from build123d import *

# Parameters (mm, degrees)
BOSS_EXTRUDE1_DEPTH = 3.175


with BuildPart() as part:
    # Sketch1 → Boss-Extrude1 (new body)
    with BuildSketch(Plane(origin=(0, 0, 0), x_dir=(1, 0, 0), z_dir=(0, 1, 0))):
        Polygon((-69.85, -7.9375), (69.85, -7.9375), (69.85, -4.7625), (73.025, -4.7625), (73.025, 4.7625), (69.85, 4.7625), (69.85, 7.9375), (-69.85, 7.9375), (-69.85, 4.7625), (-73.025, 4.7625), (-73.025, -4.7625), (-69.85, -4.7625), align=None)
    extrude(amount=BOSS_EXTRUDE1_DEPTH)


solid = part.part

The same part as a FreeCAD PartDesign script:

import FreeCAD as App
import Part
import Sketcher
from FreeCAD import Vector
Q = App.Units.Quantity

doc = App.newDocument("Part")
body = doc.addObject("PartDesign::Body", "Body")

sketch1 = body.newObject("Sketcher::SketchObject", "Sketch")
sketch1.AttachmentSupport = (doc.getObject("XZ_Plane"), [""])
sketch1.MapMode = "FlatFace"
sketch1.addGeometry([
    Part.LineSegment(Vector(-69.8, 7.9, 0), Vector(69.8, 7.9, 0)),
    Part.LineSegment(Vector(69.8, 7.9, 0), Vector(69.8, 4.8, 0)),
    Part.LineSegment(Vector(69.8, 4.8, 0), Vector(73, 4.8, 0)),
    Part.LineSegment(Vector(73, 4.8, 0), Vector(73, -4.8, 0)),
    Part.LineSegment(Vector(73, -4.8, 0), Vector(69.8, -4.8, 0)),
    Part.LineSegment(Vector(69.8, -4.8, 0), Vector(69.8, -7.9, 0)),
    Part.LineSegment(Vector(69.8, -7.9, 0), Vector(-69.8, -7.9, 0)),
    Part.LineSegment(Vector(-69.8, -7.9, 0), Vector(-69.8, -4.8, 0)),
    Part.LineSegment(Vector(-69.8, -4.8, 0), Vector(-73, -4.8, 0)),
    Part.LineSegment(Vector(-73, -4.8, 0), Vector(-73, 4.8, 0)),
    Part.LineSegment(Vector(-73, 4.8, 0), Vector(-69.8, 4.8, 0)),
    Part.LineSegment(Vector(-69.8, 4.8, 0), Vector(-69.8, 7.9, 0)),
], False)
sketch1.addConstraint([
    Sketcher.Constraint("Coincident", 0, 2, 1, 1),
    Sketcher.Constraint("Coincident", 1, 2, 2, 1),
    Sketcher.Constraint("Coincident", 2, 2, 3, 1),
    Sketcher.Constraint("Coincident", 3, 2, 4, 1),
    Sketcher.Constraint("Coincident", 4, 2, 5, 1),
    Sketcher.Constraint("Coincident", 5, 2, 6, 1),
    Sketcher.Constraint("Coincident", 6, 2, 7, 1),
    Sketcher.Constraint("Coincident", 7, 2, 8, 1),
    Sketcher.Constraint("Coincident", 8, 2, 9, 1),
    Sketcher.Constraint("Coincident", 9, 2, 10, 1),
    Sketcher.Constraint("Coincident", 10, 2, 11, 1),
    Sketcher.Constraint("Coincident", 11, 2, 0, 1),
    Sketcher.Constraint("Horizontal", 0),
    Sketcher.Constraint("Vertical", 1),
    Sketcher.Constraint("Horizontal", 2),
    Sketcher.Constraint("Vertical", 3),
    Sketcher.Constraint("Horizontal", 4),
    Sketcher.Constraint("Vertical", 5),
    Sketcher.Constraint("Horizontal", 6),
    Sketcher.Constraint("Vertical", 7),
    Sketcher.Constraint("Horizontal", 8),
    Sketcher.Constraint("Vertical", 9),
    Sketcher.Constraint("Horizontal", 10),
    Sketcher.Constraint("Vertical", 11),
    Sketcher.Constraint("Symmetric", 0, 2, 6, 2, -1, 1),
    Sketcher.Constraint("Symmetric", 2, 2, 8, 2, -1, 1),
    Sketcher.Constraint("Symmetric", 4, 2, 10, 2, -1, 1),
    Sketcher.Constraint("Symmetric", 4, 2, 7, 2, -2),
    Sketcher.Constraint("Equal", 10, 1),
    Sketcher.Constraint("DistanceX", 0, 1, 0, 2, Q("5.5 in")),
    Sketcher.Constraint("DistanceY", 3, 2, 0, 2, Q("0.5 in")),
    Sketcher.Constraint("DistanceX", 2, 1, 2, 2, Q("0.125 in")),
])
pad1 = body.newObject("PartDesign::Pad", "Pad")
pad1.Profile = sketch1
pad1.Length = Q("0.125 in")
pad1.Reversed = True

doc.recompute()
